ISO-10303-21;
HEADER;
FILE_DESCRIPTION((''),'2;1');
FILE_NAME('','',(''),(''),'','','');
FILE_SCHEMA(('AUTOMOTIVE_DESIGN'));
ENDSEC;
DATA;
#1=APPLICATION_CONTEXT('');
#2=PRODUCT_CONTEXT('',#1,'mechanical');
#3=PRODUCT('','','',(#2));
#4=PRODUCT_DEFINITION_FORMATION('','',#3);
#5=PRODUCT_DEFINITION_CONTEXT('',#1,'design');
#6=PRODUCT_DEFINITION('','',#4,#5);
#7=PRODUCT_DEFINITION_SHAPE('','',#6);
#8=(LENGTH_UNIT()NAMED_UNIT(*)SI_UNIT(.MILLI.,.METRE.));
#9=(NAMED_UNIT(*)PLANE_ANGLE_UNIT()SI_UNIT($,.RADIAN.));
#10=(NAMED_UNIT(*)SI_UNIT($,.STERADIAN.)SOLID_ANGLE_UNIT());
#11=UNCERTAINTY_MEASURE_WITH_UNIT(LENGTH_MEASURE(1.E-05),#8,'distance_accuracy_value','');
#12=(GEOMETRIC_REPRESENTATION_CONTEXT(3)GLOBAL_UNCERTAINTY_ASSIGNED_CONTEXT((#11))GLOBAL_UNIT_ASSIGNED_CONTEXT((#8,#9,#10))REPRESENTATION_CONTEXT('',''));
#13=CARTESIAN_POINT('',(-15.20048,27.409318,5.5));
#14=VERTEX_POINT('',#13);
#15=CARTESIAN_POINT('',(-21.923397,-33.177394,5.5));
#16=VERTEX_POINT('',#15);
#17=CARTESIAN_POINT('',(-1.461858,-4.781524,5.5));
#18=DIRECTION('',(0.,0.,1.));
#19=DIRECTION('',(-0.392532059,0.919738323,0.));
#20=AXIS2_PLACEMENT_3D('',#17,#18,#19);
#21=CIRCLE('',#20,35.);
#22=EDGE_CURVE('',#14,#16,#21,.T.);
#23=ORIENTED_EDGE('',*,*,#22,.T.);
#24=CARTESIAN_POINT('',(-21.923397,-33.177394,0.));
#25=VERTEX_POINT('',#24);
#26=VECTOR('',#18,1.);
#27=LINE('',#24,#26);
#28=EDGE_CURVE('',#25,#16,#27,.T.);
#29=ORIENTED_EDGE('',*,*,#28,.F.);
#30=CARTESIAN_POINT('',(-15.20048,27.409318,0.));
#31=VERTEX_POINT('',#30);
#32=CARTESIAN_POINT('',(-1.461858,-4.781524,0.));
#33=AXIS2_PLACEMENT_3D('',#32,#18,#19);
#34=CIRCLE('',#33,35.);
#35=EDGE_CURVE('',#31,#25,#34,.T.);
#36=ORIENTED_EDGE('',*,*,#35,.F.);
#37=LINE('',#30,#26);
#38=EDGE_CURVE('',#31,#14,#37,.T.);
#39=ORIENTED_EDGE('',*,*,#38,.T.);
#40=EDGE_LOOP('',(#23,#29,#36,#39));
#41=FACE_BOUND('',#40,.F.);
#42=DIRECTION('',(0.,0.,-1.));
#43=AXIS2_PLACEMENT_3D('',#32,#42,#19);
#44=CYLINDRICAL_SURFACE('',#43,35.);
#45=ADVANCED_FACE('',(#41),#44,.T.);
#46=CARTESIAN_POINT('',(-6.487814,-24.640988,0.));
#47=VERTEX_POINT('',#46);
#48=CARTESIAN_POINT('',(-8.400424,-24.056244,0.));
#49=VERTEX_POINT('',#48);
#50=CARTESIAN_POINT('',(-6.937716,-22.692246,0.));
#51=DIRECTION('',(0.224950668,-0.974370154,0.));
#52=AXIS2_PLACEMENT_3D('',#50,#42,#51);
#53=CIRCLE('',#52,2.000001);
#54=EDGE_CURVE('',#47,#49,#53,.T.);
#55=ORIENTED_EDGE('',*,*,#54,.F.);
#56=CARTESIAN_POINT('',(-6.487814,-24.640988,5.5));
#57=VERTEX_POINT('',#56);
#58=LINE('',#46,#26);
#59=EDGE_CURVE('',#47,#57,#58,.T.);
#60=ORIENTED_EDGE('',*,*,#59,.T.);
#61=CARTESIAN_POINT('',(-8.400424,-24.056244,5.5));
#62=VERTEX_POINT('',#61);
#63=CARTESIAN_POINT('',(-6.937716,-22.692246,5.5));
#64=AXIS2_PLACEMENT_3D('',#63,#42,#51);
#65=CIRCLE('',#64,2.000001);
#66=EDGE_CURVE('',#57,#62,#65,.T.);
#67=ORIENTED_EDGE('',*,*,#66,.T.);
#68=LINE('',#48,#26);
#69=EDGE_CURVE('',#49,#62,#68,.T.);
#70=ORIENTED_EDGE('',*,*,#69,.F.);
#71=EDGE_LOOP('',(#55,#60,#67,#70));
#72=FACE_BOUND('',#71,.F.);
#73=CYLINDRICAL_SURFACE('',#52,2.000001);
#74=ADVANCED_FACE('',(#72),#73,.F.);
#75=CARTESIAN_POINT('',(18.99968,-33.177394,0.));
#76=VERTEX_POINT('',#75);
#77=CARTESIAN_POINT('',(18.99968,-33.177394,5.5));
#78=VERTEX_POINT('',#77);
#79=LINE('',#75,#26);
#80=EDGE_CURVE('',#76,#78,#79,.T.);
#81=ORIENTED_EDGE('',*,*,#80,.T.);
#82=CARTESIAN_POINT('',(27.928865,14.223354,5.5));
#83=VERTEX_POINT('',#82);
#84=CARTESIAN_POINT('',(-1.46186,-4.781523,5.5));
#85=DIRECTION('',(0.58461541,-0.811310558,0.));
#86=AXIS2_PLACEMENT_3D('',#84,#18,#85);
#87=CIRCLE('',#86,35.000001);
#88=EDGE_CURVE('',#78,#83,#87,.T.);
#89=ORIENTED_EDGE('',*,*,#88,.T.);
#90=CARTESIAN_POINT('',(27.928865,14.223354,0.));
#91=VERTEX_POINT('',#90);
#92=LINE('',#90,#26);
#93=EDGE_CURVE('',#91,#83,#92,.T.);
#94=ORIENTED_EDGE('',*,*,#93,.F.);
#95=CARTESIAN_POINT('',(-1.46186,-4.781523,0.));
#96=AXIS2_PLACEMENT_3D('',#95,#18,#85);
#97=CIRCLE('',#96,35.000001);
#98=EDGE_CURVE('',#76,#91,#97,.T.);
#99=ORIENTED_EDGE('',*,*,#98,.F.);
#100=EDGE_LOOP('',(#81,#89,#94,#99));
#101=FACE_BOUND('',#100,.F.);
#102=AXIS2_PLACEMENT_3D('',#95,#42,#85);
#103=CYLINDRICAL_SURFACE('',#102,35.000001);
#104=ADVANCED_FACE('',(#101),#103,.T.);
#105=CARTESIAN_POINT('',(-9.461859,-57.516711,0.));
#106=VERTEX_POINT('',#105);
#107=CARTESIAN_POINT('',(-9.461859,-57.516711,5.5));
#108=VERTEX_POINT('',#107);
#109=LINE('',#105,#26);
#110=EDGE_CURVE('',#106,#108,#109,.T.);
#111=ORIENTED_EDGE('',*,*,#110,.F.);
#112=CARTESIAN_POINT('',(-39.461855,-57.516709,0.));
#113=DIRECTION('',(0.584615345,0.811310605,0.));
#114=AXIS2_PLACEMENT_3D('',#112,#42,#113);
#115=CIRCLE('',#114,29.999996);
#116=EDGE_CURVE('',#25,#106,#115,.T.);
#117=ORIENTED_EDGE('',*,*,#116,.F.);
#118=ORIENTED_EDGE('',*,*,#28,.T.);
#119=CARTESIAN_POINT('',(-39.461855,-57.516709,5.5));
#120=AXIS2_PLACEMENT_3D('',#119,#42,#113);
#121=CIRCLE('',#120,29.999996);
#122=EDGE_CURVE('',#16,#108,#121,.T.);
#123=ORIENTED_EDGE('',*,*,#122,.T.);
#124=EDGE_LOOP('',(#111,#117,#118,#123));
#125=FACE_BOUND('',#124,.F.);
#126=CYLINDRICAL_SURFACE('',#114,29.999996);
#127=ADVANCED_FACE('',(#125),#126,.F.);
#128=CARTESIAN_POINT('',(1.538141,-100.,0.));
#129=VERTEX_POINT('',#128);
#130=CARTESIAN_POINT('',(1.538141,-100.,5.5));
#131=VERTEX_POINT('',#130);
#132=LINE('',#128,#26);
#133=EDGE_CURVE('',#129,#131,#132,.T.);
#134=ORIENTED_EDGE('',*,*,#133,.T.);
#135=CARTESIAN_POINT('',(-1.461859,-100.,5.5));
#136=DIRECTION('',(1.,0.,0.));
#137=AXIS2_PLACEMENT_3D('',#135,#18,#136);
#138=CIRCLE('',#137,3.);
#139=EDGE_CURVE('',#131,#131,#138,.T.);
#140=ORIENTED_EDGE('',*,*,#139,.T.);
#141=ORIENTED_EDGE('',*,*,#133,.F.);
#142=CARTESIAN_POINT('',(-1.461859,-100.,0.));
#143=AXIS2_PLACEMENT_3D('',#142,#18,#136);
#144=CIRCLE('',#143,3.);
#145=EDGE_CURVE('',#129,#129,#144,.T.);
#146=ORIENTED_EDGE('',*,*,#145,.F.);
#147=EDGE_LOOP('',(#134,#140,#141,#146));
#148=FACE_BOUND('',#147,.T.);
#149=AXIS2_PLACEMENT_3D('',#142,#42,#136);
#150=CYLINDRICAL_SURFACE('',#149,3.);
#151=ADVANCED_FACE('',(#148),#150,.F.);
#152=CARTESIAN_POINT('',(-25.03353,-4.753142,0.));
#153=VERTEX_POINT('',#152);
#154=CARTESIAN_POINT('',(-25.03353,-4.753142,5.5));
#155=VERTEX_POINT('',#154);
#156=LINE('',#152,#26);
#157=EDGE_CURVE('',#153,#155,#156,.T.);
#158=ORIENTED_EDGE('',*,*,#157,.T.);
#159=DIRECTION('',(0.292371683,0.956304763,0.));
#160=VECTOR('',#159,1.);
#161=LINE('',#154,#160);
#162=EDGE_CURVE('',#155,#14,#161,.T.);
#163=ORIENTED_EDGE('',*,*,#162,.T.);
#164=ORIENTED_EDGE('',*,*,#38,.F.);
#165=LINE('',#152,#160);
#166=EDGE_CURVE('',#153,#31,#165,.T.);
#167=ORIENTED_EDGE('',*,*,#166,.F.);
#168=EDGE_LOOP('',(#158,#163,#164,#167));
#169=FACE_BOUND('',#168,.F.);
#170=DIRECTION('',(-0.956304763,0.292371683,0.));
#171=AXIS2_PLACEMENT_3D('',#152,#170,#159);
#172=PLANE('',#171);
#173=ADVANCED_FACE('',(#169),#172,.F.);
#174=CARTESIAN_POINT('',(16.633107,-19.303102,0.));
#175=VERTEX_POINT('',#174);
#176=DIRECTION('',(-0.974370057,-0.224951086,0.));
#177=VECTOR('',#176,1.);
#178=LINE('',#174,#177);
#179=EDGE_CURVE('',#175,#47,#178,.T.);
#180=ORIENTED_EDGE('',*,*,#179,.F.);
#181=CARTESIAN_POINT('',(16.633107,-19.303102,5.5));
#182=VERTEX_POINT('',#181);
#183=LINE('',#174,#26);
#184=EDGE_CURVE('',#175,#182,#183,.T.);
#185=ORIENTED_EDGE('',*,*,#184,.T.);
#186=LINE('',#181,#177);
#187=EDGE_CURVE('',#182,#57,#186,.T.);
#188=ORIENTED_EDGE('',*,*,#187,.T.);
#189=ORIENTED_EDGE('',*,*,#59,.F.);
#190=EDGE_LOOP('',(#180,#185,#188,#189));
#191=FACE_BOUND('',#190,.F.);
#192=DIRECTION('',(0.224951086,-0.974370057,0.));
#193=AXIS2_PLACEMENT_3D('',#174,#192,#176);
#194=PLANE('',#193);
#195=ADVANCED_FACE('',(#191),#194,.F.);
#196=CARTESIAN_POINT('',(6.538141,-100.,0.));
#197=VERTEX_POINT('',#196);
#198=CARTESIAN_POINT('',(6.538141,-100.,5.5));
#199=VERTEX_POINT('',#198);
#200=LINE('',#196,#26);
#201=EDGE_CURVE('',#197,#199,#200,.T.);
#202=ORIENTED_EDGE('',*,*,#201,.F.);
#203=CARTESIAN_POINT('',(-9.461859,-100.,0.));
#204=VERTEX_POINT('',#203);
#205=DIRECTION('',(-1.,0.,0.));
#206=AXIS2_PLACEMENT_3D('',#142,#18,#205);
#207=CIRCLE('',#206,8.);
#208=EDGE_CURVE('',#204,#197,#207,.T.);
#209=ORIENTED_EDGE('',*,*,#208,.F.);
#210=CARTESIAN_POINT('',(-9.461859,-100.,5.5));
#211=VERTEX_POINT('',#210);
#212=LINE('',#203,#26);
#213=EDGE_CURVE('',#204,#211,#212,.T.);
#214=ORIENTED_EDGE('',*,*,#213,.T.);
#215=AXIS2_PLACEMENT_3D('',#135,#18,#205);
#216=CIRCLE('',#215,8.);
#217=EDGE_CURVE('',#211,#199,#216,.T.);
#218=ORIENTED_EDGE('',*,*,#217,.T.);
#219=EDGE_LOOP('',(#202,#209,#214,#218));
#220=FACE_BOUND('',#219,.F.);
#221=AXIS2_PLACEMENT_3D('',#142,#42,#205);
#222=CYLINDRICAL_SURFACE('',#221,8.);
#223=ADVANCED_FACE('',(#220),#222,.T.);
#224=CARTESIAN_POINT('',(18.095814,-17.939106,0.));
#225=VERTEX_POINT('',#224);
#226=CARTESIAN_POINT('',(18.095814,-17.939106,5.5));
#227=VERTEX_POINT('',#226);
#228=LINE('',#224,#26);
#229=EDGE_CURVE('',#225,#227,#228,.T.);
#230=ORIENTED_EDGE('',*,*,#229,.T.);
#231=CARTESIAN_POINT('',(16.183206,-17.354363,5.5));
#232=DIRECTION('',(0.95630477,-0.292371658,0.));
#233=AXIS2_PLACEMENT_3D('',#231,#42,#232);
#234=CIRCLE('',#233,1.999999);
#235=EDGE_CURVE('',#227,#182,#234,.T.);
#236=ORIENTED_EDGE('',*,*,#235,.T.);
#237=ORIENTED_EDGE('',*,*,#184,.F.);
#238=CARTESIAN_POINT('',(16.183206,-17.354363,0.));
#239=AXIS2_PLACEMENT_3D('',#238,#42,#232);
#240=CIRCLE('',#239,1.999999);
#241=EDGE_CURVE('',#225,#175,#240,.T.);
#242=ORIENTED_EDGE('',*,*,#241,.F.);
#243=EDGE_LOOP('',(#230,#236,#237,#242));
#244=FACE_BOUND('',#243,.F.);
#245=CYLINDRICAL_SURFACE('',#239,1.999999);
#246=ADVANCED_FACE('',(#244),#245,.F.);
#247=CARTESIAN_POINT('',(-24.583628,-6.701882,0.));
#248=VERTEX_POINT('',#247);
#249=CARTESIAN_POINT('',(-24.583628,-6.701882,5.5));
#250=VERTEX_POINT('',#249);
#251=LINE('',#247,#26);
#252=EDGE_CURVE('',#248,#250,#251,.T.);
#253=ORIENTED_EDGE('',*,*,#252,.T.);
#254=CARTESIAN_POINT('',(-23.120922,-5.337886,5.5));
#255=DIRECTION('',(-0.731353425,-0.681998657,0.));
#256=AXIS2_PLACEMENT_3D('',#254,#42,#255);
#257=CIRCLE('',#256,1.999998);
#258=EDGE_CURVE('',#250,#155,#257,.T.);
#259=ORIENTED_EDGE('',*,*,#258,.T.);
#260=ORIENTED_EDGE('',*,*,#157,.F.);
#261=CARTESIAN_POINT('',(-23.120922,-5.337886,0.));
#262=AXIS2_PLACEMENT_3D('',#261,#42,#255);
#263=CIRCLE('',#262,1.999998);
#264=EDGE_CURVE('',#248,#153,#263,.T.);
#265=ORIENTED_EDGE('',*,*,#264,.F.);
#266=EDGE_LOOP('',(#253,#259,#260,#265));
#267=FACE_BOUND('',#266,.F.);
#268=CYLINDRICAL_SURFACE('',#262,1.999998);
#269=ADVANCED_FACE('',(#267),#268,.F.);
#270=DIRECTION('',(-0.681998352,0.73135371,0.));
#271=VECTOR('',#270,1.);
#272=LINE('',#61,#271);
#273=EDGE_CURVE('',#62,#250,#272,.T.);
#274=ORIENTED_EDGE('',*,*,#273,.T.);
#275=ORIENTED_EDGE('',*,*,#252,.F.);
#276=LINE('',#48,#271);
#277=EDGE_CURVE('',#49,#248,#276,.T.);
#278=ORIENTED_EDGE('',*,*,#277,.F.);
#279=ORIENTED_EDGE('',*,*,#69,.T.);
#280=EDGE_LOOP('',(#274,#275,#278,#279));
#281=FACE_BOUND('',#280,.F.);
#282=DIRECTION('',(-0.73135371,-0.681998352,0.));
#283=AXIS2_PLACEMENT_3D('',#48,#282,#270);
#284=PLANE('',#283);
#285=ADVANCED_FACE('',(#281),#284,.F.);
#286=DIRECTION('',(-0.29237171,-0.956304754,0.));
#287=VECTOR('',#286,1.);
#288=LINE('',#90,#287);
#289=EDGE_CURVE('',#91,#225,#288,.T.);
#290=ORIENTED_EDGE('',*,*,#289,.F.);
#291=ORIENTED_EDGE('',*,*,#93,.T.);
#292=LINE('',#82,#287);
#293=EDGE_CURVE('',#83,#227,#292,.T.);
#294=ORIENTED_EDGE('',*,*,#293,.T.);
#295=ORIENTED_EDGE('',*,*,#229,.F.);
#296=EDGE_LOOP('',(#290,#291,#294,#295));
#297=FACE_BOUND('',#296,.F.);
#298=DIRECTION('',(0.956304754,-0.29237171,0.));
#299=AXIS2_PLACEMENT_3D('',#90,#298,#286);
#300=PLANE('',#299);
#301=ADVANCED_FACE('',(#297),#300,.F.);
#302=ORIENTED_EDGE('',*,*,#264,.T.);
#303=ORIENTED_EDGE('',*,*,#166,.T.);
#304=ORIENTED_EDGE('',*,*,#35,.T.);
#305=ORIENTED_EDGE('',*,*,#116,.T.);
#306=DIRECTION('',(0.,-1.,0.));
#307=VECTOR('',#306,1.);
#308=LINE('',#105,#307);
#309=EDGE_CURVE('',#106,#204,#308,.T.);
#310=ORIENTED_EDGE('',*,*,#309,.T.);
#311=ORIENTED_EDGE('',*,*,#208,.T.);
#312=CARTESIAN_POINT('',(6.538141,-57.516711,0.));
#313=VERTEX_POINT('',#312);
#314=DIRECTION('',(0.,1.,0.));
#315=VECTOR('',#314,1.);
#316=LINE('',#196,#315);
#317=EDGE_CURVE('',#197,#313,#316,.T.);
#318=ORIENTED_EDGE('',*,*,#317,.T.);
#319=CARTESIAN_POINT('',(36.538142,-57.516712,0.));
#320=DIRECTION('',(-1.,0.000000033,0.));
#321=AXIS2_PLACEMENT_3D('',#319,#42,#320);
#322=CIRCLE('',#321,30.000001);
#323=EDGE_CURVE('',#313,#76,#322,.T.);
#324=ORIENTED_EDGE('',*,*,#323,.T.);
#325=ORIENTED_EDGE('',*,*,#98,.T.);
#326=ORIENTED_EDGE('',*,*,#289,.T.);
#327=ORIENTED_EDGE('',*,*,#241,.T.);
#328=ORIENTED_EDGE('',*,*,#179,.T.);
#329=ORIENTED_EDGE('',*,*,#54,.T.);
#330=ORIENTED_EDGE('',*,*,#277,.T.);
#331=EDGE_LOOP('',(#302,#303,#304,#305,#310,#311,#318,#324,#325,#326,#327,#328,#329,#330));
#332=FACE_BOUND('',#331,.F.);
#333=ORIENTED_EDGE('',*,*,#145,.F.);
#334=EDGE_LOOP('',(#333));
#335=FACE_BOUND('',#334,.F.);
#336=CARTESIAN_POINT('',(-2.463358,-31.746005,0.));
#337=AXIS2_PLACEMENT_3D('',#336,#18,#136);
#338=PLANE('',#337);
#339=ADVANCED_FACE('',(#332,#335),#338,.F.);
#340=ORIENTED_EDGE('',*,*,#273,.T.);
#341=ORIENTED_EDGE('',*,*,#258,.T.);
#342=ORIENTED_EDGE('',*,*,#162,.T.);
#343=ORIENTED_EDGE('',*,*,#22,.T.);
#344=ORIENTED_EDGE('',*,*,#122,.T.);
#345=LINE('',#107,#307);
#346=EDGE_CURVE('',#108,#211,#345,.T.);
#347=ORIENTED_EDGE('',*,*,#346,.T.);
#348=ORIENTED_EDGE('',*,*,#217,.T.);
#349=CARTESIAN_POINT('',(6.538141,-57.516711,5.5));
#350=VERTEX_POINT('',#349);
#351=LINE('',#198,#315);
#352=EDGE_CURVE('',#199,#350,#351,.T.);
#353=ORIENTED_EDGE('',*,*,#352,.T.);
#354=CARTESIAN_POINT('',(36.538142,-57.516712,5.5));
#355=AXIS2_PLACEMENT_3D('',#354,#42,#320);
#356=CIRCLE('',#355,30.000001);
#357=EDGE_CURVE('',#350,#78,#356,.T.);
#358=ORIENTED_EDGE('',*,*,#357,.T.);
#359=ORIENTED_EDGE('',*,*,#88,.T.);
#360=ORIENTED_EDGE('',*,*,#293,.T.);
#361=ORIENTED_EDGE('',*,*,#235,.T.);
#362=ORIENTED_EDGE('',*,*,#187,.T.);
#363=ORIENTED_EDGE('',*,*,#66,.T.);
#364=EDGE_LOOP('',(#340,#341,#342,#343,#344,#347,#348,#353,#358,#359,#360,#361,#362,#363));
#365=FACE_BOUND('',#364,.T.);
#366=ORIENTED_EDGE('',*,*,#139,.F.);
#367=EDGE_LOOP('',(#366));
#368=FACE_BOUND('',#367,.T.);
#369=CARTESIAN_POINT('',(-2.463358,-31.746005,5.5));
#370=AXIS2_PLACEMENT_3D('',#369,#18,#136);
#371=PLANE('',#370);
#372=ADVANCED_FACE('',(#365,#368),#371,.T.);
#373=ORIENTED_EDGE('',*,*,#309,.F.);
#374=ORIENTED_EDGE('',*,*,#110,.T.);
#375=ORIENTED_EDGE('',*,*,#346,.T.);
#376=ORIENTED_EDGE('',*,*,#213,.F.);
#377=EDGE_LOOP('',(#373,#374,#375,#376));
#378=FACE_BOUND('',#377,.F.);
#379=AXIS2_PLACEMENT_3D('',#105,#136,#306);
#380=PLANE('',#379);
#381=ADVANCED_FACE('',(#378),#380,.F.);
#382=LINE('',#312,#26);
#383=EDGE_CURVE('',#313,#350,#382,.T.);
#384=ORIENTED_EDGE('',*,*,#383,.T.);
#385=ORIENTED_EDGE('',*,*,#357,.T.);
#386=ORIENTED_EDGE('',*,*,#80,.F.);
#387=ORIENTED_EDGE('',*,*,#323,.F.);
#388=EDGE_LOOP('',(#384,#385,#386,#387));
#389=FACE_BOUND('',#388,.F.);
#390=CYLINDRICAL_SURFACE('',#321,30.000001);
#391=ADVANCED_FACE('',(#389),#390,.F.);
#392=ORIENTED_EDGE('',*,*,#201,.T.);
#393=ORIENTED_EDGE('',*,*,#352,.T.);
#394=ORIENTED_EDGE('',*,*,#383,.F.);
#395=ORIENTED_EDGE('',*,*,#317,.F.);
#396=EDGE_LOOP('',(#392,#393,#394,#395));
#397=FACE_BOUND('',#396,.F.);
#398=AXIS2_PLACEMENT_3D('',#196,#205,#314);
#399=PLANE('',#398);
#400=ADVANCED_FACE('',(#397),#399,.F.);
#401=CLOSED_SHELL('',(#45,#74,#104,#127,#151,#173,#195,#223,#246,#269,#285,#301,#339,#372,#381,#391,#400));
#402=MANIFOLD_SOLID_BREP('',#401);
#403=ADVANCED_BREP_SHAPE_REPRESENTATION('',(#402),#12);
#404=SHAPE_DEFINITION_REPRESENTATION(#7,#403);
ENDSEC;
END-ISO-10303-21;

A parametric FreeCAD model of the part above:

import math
import FreeCAD as App
import Part
import Sketcher
Q = App.Units.Quantity

doc = App.newDocument("Part")
body = doc.addObject("PartDesign::Body", "Body")

# Sketch on XY plane
sketch1 = body.newObject("Sketcher::SketchObject", "Sketch")
sketch1.AttachmentSupport = (doc.getObject("XY_Plane"), [""])
sketch1.MapMode = "FlatFace"
sketch1.addGeometry([
    Part.ArcOfCircle(Part.Circle(App.Vector(-1.46186, -4.781523, 0), App.Vector(0, 0, 1), 35.000001), math.radians(-54.224175), math.radians(32.887856)),  # 0
    Part.LineSegment(App.Vector(27.928865, 14.223354, 0), App.Vector(18.095814, -17.939106, 0)),  # 1
    Part.ArcOfCircle(Part.Circle(App.Vector(16.183206, -17.354363, 0), App.Vector(0, 0, 1), 1.999999), math.radians(-77.000017), math.radians(-16.999997)),  # 2
    Part.LineSegment(App.Vector(16.633107, -19.303102, 0), App.Vector(-6.487814, -24.640988, 0)),  # 3
    Part.ArcOfCircle(Part.Circle(App.Vector(-6.937716, -22.692246, 0), App.Vector(0, 0, 1), 2.000001), math.radians(-137.000001), math.radians(-77.000023)),  # 4
    Part.LineSegment(App.Vector(-8.400424, -24.056244, 0), App.Vector(-24.583628, -6.701882, 0)),  # 5
    Part.ArcOfCircle(Part.Circle(App.Vector(-23.120922, -5.337886, 0), App.Vector(0, 0, 1), 1.999998), math.radians(162.999972), math.radians(223.000023)),  # 6
    Part.LineSegment(App.Vector(-25.03353, -4.753142, 0), App.Vector(-15.20048, 27.409318, 0)),  # 7
    Part.ArcOfCircle(Part.Circle(App.Vector(-1.461858, -4.781524, 0), App.Vector(0, 0, 1), 35), math.radians(113.112144), math.radians(234.224176)),  # 8
    Part.ArcOfCircle(Part.Circle(App.Vector(-39.461855, -57.516709, 0), App.Vector(0, 0, 1), 29.999996), math.radians(-0.000004), math.radians(54.224179)),  # 9
    Part.LineSegment(App.Vector(-9.461859, -57.516711, 0), App.Vector(-9.461859, -100, 0)),  # 10
    Part.ArcOfCircle(Part.Circle(App.Vector(-1.461859, -100, 0), App.Vector(0, 0, 1), 8), math.radians(180), math.radians(360)),  # 11
    Part.LineSegment(App.Vector(6.538141, -100, 0), App.Vector(6.538141, -57.516711, 0)),  # 12
    Part.ArcOfCircle(Part.Circle(App.Vector(36.538142, -57.516712, 0), App.Vector(0, 0, 1), 30.000001), math.radians(125.775823), math.radians(179.999998)),  # 13
    Part.Circle(App.Vector(-1.461859, -100, 0), App.Vector(0, 0, 1), 3),  # 14
], False)
sketch1.addConstraint([
    Sketcher.Constraint("Coincident", 0, 2, 1, 1),
    Sketcher.Constraint("Tangent", 1, 2, 2, 2),
    Sketcher.Constraint("Tangent", 2, 1, 3, 1),
    Sketcher.Constraint("Tangent", 3, 2, 4, 2),
    Sketcher.Constraint("Tangent", 4, 1, 5, 1),
    Sketcher.Constraint("Tangent", 5, 2, 6, 2),
    Sketcher.Constraint("Tangent", 6, 1, 7, 1),
    Sketcher.Constraint("Coincident", 7, 2, 8, 1),
    Sketcher.Constraint("Tangent", 8, 2, 9, 2),
    Sketcher.Constraint("Tangent", 9, 1, 10, 1),
    Sketcher.Constraint("Tangent", 10, 2, 11, 1),
    Sketcher.Constraint("Tangent", 11, 2, 12, 1),
    Sketcher.Constraint("Tangent", 12, 2, 13, 2),
    Sketcher.Constraint("Tangent", 13, 1, 0, 1),
    Sketcher.Constraint("Vertical", 10),
    Sketcher.Constraint("Vertical", 12),
    Sketcher.Constraint("Coincident", 8, 3, 0, 3),
    Sketcher.Constraint("Coincident", 14, 3, 11, 3),
    Sketcher.Constraint("Equal", 2, 6),
    Sketcher.Constraint("Equal", 0, 8),
    Sketcher.Constraint("Parallel", 1, 7),
    Sketcher.Constraint("Horizontal", 13, 3, 9, 1),
    Sketcher.Constraint("Horizontal", 8, 2, 13, 1),
    Sketcher.Constraint("Equal", 3, 5),
    Sketcher.Constraint("Equal", 1, 7),
    Sketcher.Constraint("Diameter", 14, Q("6 mm")),
    Sketcher.Constraint("Radius", 0, Q("35.000001 mm")),
    Sketcher.Constraint("Radius", 2, Q("1.999999 mm")),
    Sketcher.Constraint("Radius", 4, Q("2.000001 mm")),
    Sketcher.Constraint("Radius", 11, Q("8 mm")),
    Sketcher.Constraint("Radius", 13, Q("30.000001 mm")),
    Sketcher.Constraint("Angle", 1, Q("-107 deg")),
    Sketcher.Constraint("Angle", 3, Q("-166.999998 deg")),
    Sketcher.Constraint("Angle", 5, Q("132.999999 deg")),
    Sketcher.Constraint("DistanceY", 11, 3, -1, 1, Q("100 mm")),
    Sketcher.Constraint("DistanceY", 10, 2, 10, 1, Q("42.483289 mm")),
    Sketcher.Constraint("DistanceY", 2, 1, -1, 1, Q("19.303102 mm")),
    Sketcher.Constraint("DistanceY", 4, 3, 0, 2, Q("36.9156 mm")),
    Sketcher.Constraint("DistanceX", 0, 3, -1, 1, Q("1.46186 mm")),
])
pad1 = body.newObject("PartDesign::Pad", "Pad")
pad1.Profile = sketch1
pad1.Length = 5.5

doc.recompute()
